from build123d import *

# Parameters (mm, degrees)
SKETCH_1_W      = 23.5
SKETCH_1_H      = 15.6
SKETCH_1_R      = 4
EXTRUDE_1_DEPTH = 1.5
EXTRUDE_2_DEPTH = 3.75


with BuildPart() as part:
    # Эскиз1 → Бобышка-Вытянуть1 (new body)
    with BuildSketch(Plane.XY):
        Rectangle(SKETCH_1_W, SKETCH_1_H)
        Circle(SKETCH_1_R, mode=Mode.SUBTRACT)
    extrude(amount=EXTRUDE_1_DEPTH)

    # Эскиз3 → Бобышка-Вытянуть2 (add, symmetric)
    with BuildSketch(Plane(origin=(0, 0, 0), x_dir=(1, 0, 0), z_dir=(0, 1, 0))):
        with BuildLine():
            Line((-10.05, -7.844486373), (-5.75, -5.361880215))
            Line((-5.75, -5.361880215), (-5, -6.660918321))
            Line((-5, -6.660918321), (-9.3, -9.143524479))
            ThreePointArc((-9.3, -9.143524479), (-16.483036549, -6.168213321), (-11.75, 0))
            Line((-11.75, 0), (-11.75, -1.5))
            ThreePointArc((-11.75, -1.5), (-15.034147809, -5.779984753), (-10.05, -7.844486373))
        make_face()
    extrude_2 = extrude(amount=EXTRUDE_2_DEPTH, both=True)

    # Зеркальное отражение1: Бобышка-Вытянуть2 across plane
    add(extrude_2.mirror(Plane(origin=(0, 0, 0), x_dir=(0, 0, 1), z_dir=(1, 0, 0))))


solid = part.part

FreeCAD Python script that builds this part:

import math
import FreeCAD as App
import Part
import Sketcher
Q = App.Units.Quantity

doc = App.newDocument("Part")
body = doc.addObject("PartDesign::Body", "Body")

sketch1 = doc.addObject("Sketcher::SketchObject", "Sketch")
body.addObject(sketch1)
sketch1.AttachmentSupport = (doc.XY_Plane, [""])
sketch1.MapMode = "FlatFace"
sketch1.addGeometry([
    Part.LineSegment(App.Vector(-11.8, 7.8, 0), App.Vector(-11.8, -7.8, 0)),
    Part.LineSegment(App.Vector(-11.8, -7.8, 0), App.Vector(11.8, -7.8, 0)),
    Part.LineSegment(App.Vector(11.8, -7.8, 0), App.Vector(11.8, 7.8, 0)),
    Part.LineSegment(App.Vector(11.8, 7.8, 0), App.Vector(-11.8, 7.8, 0)),
    Part.Circle(App.Vector(0, 0, 0), App.Vector(0, 0, 1), 4),
], False)
sketch1.addConstraint([
    Sketcher.Constraint("Coincident", 0, 2, 1, 1),
    Sketcher.Constraint("Coincident", 1, 2, 2, 1),
    Sketcher.Constraint("Coincident", 2, 2, 3, 1),
    Sketcher.Constraint("Coincident", 3, 2, 0, 1),
    Sketcher.Constraint("Vertical", 0),
    Sketcher.Constraint("Horizontal", 1),
    Sketcher.Constraint("Vertical", 2),
    Sketcher.Constraint("Horizontal", 3),
    Sketcher.Constraint("Coincident", 4, 3, -1, 1),
    Sketcher.Constraint("Symmetric", 0, 2, 2, 2, -1, 1),
    Sketcher.Constraint("Diameter", 4, 8.0),
    Sketcher.Constraint("DistanceX", 1, 1, 1, 2, 23.5),
    Sketcher.Constraint("DistanceY", 0, 2, 0, 1, 15.6),
])
pad1 = doc.addObject("PartDesign::Pad", "Pad")
body.addObject(pad1)
pad1.Profile = sketch1
pad1.Length = 1.5

sketch2 = doc.addObject("Sketcher::SketchObject", "Sketch001")
body.addObject(sketch2)
sketch2.AttachmentSupport = (doc.XZ_Plane, [""])
sketch2.MapMode = "FlatFace"
sketch2.addGeometry([
    Part.LineSegment(App.Vector(-5.8, 5.4, 0), App.Vector(-10.1, 7.8, 0)),
    Part.ArcOfCircle(Part.Circle(App.Vector(-11.8, 4.9, 0), App.Vector(0, 0, 1), 3.4), math.radians(60), math.radians(270)),
    Part.LineSegment(App.Vector(-11.8, 1.5, 0), App.Vector(-11.8, 0, 0)),
    Part.ArcOfCircle(Part.Circle(App.Vector(-11.8, 4.9, 0), App.Vector(0, 0, 1), 4.9), math.radians(60), math.radians(270)),
    Part.LineSegment(App.Vector(-9.3, 9.1, 0), App.Vector(-5, 6.7, 0)),
    Part.LineSegment(App.Vector(-5, 6.7, 0), App.Vector(-5.8, 5.4, 0)),
], False)
sketch2.addConstraint([
    Sketcher.Constraint("Tangent", 0, 2, 1, 1),
    Sketcher.Constraint("Coincident", 1, 2, 2, 1),
    Sketcher.Constraint("Coincident", 2, 2, 3, 2),
    Sketcher.Constraint("Tangent", 3, 1, 4, 1),
    Sketcher.Constraint("Coincident", 4, 2, 5, 1),
    Sketcher.Constraint("Coincident", 5, 2, 0, 1),
    Sketcher.Constraint("Vertical", 2),
    Sketcher.Constraint("Coincident", 3, 3, 1, 3),
    Sketcher.Constraint("PointOnObject", 2, 2, -1),
    Sketcher.Constraint("Parallel", 0, 4),
    Sketcher.Constraint("Perpendicular", 4, 5),
    Sketcher.Constraint("Vertical", 3, 3, 1, 2),
    Sketcher.Constraint("Radius", 1, 3.4),
    Sketcher.Constraint("Radius", 3, 4.9),
    Sketcher.Constraint("Angle", 0, Q("150 deg")),
    Sketcher.Constraint("DistanceX", 4, 2, -1, 1, 5.0),
    Sketcher.Constraint("DistanceX", 1, 3, 5, 2, 6.0),
])
pad2 = doc.addObject("PartDesign::Pad", "Pad001")
body.addObject(pad2)
pad2.Profile = sketch2
pad2.Length = 7.5
pad2.Midplane = True
doc.recompute()

mirrored = doc.addObject("PartDesign::Mirrored", "Mirrored")
body.addObject(mirrored)
mirrored.Originals = [pad2]
mirrored.MirrorPlane = (doc.YZ_Plane, [""])
body.Tip = mirrored

doc.recompute()
